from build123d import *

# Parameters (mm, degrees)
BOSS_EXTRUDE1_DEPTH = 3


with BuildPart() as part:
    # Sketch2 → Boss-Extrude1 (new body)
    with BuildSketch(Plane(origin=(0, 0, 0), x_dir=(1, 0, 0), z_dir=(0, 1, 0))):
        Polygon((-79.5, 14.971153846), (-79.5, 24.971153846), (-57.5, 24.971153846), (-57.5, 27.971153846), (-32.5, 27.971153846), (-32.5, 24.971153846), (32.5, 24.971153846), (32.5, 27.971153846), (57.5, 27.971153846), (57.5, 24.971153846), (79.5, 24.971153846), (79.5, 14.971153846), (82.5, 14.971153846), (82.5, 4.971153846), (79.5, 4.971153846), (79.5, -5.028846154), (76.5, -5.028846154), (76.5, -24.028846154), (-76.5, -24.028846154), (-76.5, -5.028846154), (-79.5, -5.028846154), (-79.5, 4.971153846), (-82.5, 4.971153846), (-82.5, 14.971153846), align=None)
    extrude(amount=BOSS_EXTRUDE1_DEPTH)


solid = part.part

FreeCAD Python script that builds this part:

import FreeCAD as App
import Part
import Sketcher


def add_polygon(sketch, points):
    """Adds a closed chain of lines whose ends are joined by coincident constraints."""
    first, n = sketch.GeometryCount, len(points)
    for a, b in zip(points, points[1:] + points[:1]):
        sketch.addGeometry(Part.LineSegment(App.Vector(*a, 0), App.Vector(*b, 0)), False)
    for i in range(n):
        sketch.addConstraint(Sketcher.Constraint("Coincident", first + i, 2, first + (i + 1) % n, 1))

doc = App.newDocument("Part")
body = doc.addObject("PartDesign::Body", "Body")

sketch1 = body.newObject("Sketcher::SketchObject", "Sketch")
sketch1.AttachmentSupport = (doc.getObject("XZ_Plane"), [""])
sketch1.MapMode = "FlatFace"
add_polygon(sketch1, [(-79.5, -24.971154), (-79.5, -14.971154), (-82.5, -14.971154), (-82.5, -4.971154), (-79.5, -4.971154), (-79.5, 5.028846), (-76.5, 5.028846), (-76.5, 24.028846), (76.5, 24.028846), (76.5, 5.028846), (79.5, 5.028846), (79.5, -4.971154), (82.5, -4.971154), (82.5, -14.971154), (79.5, -14.971154), (79.5, -24.971154), (57.5, -24.971154), (57.5, -27.971154), (32.5, -27.971154), (32.5, -24.971154), (-32.5, -24.971154), (-32.5, -27.971154), (-57.5, -27.971154), (-57.5, -24.971154)])
sketch1.addConstraint([
    Sketcher.Constraint("Vertical", 0),
    Sketcher.Constraint("Horizontal", 1),
    Sketcher.Constraint("Vertical", 2),
    Sketcher.Constraint("Horizontal", 3),
    Sketcher.Constraint("Vertical", 4),
    Sketcher.Constraint("Horizontal", 5),
    Sketcher.Constraint("Vertical", 6),
    Sketcher.Constraint("Horizontal", 7),
    Sketcher.Constraint("Vertical", 8),
    Sketcher.Constraint("Horizontal", 9),
    Sketcher.Constraint("Vertical", 10),
    Sketcher.Constraint("Horizontal", 11),
    Sketcher.Constraint("Vertical", 12),
    Sketcher.Constraint("Horizontal", 13),
    Sketcher.Constraint("Vertical", 14),
    Sketcher.Constraint("Horizontal", 15),
    Sketcher.Constraint("Vertical", 16),
    Sketcher.Constraint("Horizontal", 17),
    Sketcher.Constraint("Vertical", 18),
    Sketcher.Constraint("Horizontal", 19),
    Sketcher.Constraint("Vertical", 20),
    Sketcher.Constraint("Horizontal", 21),
    Sketcher.Constraint("Vertical", 22),
    Sketcher.Constraint("Horizontal", 23),
    Sketcher.Constraint("Symmetric", 5, 2, 8, 2, -2),
    Sketcher.Constraint("Symmetric", 3, 2, 10, 2, -2),
    Sketcher.Constraint("Symmetric", 1, 2, 12, 2, -2),
    Sketcher.Constraint("Symmetric", 17, 2, 20, 2, -2),
    Sketcher.Constraint("Symmetric", 15, 2, 22, 2, -2),
    Sketcher.Constraint("Horizontal", 15, 2, 18, 2),
    Sketcher.Constraint("Vertical", 0, 2, 3, 2),
    Sketcher.Constraint("Vertical", 10, 2, 13, 2),
    Sketcher.Constraint("Equal", 3, 5),
    Sketcher.Constraint("Equal", 0, 2),
    Sketcher.Constraint("Equal", 2, 4),
    Sketcher.Constraint("Equal", 13, 16),
    Sketcher.Constraint("DistanceX", 1, 2, 1, 1, 3.0),
    Sketcher.Constraint("DistanceX", 7, 1, 7, 2, 153.0),
    Sketcher.Constraint("DistanceX", 15, 2, 15, 1, 22.0),
    Sketcher.Constraint("DistanceX", 17, 2, 17, 1, 25.0),
    Sketcher.Constraint("DistanceY", 0, 1, 0, 2, 10.0),
    Sketcher.Constraint("DistanceY", 6, 1, 6, 2, 19.0),
    Sketcher.Constraint("DistanceY", 0, 2, -1, 1, 14.971154),
])
pad1 = body.newObject("PartDesign::Pad", "Pad")
pad1.Profile = sketch1
pad1.Length = 3
pad1.Reversed = True

doc.recompute()
